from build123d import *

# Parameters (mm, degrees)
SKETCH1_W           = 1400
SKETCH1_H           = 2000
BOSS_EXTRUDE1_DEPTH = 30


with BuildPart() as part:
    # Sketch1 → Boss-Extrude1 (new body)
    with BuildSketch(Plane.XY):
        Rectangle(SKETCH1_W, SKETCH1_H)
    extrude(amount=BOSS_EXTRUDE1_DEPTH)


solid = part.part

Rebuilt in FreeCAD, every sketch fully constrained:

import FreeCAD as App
import Part
import Sketcher

V = App.Vector
Q = App.Units.Quantity

doc = App.newDocument("Part")
body = doc.addObject("PartDesign::Body", "Body")

sketch1 = doc.addObject("Sketcher::SketchObject", "Sketch")
body.addObject(sketch1)
sketch1.AttachmentSupport = (doc.XY_Plane, [""])
sketch1.MapMode = "FlatFace"
sketch1.addGeometry([
    Part.LineSegment(V(-700, 1000, 0), V(-700, -1000, 0)),
    Part.LineSegment(V(-700, -1000, 0), V(700, -1000, 0)),
    Part.LineSegment(V(700, -1000, 0), V(700, 1000, 0)),
    Part.LineSegment(V(700, 1000, 0), V(-700, 1000, 0)),
], False)
sketch1.addConstraint([
    Sketcher.Constraint("Coincident", 0, 2, 1, 1),
    Sketcher.Constraint("Coincident", 1, 2, 2, 1),
    Sketcher.Constraint("Coincident", 2, 2, 3, 1),
    Sketcher.Constraint("Coincident", 3, 2, 0, 1),
    Sketcher.Constraint("Vertical", 0),
    Sketcher.Constraint("Horizontal", 1),
    Sketcher.Constraint("Vertical", 2),
    Sketcher.Constraint("Horizontal", 3),
    Sketcher.Constraint("Symmetric", 0, 2, 2, 2, -1, 1),
    Sketcher.Constraint("DistanceX", 1, 1, 1, 2, Q("1400 mm")),
    Sketcher.Constraint("DistanceY", 0, 2, 0, 1, Q("2000 mm")),
])
pad1 = doc.addObject("PartDesign::Pad", "Pad")
body.addObject(pad1)
pad1.Profile = sketch1
pad1.Length = 30

doc.recompute()
